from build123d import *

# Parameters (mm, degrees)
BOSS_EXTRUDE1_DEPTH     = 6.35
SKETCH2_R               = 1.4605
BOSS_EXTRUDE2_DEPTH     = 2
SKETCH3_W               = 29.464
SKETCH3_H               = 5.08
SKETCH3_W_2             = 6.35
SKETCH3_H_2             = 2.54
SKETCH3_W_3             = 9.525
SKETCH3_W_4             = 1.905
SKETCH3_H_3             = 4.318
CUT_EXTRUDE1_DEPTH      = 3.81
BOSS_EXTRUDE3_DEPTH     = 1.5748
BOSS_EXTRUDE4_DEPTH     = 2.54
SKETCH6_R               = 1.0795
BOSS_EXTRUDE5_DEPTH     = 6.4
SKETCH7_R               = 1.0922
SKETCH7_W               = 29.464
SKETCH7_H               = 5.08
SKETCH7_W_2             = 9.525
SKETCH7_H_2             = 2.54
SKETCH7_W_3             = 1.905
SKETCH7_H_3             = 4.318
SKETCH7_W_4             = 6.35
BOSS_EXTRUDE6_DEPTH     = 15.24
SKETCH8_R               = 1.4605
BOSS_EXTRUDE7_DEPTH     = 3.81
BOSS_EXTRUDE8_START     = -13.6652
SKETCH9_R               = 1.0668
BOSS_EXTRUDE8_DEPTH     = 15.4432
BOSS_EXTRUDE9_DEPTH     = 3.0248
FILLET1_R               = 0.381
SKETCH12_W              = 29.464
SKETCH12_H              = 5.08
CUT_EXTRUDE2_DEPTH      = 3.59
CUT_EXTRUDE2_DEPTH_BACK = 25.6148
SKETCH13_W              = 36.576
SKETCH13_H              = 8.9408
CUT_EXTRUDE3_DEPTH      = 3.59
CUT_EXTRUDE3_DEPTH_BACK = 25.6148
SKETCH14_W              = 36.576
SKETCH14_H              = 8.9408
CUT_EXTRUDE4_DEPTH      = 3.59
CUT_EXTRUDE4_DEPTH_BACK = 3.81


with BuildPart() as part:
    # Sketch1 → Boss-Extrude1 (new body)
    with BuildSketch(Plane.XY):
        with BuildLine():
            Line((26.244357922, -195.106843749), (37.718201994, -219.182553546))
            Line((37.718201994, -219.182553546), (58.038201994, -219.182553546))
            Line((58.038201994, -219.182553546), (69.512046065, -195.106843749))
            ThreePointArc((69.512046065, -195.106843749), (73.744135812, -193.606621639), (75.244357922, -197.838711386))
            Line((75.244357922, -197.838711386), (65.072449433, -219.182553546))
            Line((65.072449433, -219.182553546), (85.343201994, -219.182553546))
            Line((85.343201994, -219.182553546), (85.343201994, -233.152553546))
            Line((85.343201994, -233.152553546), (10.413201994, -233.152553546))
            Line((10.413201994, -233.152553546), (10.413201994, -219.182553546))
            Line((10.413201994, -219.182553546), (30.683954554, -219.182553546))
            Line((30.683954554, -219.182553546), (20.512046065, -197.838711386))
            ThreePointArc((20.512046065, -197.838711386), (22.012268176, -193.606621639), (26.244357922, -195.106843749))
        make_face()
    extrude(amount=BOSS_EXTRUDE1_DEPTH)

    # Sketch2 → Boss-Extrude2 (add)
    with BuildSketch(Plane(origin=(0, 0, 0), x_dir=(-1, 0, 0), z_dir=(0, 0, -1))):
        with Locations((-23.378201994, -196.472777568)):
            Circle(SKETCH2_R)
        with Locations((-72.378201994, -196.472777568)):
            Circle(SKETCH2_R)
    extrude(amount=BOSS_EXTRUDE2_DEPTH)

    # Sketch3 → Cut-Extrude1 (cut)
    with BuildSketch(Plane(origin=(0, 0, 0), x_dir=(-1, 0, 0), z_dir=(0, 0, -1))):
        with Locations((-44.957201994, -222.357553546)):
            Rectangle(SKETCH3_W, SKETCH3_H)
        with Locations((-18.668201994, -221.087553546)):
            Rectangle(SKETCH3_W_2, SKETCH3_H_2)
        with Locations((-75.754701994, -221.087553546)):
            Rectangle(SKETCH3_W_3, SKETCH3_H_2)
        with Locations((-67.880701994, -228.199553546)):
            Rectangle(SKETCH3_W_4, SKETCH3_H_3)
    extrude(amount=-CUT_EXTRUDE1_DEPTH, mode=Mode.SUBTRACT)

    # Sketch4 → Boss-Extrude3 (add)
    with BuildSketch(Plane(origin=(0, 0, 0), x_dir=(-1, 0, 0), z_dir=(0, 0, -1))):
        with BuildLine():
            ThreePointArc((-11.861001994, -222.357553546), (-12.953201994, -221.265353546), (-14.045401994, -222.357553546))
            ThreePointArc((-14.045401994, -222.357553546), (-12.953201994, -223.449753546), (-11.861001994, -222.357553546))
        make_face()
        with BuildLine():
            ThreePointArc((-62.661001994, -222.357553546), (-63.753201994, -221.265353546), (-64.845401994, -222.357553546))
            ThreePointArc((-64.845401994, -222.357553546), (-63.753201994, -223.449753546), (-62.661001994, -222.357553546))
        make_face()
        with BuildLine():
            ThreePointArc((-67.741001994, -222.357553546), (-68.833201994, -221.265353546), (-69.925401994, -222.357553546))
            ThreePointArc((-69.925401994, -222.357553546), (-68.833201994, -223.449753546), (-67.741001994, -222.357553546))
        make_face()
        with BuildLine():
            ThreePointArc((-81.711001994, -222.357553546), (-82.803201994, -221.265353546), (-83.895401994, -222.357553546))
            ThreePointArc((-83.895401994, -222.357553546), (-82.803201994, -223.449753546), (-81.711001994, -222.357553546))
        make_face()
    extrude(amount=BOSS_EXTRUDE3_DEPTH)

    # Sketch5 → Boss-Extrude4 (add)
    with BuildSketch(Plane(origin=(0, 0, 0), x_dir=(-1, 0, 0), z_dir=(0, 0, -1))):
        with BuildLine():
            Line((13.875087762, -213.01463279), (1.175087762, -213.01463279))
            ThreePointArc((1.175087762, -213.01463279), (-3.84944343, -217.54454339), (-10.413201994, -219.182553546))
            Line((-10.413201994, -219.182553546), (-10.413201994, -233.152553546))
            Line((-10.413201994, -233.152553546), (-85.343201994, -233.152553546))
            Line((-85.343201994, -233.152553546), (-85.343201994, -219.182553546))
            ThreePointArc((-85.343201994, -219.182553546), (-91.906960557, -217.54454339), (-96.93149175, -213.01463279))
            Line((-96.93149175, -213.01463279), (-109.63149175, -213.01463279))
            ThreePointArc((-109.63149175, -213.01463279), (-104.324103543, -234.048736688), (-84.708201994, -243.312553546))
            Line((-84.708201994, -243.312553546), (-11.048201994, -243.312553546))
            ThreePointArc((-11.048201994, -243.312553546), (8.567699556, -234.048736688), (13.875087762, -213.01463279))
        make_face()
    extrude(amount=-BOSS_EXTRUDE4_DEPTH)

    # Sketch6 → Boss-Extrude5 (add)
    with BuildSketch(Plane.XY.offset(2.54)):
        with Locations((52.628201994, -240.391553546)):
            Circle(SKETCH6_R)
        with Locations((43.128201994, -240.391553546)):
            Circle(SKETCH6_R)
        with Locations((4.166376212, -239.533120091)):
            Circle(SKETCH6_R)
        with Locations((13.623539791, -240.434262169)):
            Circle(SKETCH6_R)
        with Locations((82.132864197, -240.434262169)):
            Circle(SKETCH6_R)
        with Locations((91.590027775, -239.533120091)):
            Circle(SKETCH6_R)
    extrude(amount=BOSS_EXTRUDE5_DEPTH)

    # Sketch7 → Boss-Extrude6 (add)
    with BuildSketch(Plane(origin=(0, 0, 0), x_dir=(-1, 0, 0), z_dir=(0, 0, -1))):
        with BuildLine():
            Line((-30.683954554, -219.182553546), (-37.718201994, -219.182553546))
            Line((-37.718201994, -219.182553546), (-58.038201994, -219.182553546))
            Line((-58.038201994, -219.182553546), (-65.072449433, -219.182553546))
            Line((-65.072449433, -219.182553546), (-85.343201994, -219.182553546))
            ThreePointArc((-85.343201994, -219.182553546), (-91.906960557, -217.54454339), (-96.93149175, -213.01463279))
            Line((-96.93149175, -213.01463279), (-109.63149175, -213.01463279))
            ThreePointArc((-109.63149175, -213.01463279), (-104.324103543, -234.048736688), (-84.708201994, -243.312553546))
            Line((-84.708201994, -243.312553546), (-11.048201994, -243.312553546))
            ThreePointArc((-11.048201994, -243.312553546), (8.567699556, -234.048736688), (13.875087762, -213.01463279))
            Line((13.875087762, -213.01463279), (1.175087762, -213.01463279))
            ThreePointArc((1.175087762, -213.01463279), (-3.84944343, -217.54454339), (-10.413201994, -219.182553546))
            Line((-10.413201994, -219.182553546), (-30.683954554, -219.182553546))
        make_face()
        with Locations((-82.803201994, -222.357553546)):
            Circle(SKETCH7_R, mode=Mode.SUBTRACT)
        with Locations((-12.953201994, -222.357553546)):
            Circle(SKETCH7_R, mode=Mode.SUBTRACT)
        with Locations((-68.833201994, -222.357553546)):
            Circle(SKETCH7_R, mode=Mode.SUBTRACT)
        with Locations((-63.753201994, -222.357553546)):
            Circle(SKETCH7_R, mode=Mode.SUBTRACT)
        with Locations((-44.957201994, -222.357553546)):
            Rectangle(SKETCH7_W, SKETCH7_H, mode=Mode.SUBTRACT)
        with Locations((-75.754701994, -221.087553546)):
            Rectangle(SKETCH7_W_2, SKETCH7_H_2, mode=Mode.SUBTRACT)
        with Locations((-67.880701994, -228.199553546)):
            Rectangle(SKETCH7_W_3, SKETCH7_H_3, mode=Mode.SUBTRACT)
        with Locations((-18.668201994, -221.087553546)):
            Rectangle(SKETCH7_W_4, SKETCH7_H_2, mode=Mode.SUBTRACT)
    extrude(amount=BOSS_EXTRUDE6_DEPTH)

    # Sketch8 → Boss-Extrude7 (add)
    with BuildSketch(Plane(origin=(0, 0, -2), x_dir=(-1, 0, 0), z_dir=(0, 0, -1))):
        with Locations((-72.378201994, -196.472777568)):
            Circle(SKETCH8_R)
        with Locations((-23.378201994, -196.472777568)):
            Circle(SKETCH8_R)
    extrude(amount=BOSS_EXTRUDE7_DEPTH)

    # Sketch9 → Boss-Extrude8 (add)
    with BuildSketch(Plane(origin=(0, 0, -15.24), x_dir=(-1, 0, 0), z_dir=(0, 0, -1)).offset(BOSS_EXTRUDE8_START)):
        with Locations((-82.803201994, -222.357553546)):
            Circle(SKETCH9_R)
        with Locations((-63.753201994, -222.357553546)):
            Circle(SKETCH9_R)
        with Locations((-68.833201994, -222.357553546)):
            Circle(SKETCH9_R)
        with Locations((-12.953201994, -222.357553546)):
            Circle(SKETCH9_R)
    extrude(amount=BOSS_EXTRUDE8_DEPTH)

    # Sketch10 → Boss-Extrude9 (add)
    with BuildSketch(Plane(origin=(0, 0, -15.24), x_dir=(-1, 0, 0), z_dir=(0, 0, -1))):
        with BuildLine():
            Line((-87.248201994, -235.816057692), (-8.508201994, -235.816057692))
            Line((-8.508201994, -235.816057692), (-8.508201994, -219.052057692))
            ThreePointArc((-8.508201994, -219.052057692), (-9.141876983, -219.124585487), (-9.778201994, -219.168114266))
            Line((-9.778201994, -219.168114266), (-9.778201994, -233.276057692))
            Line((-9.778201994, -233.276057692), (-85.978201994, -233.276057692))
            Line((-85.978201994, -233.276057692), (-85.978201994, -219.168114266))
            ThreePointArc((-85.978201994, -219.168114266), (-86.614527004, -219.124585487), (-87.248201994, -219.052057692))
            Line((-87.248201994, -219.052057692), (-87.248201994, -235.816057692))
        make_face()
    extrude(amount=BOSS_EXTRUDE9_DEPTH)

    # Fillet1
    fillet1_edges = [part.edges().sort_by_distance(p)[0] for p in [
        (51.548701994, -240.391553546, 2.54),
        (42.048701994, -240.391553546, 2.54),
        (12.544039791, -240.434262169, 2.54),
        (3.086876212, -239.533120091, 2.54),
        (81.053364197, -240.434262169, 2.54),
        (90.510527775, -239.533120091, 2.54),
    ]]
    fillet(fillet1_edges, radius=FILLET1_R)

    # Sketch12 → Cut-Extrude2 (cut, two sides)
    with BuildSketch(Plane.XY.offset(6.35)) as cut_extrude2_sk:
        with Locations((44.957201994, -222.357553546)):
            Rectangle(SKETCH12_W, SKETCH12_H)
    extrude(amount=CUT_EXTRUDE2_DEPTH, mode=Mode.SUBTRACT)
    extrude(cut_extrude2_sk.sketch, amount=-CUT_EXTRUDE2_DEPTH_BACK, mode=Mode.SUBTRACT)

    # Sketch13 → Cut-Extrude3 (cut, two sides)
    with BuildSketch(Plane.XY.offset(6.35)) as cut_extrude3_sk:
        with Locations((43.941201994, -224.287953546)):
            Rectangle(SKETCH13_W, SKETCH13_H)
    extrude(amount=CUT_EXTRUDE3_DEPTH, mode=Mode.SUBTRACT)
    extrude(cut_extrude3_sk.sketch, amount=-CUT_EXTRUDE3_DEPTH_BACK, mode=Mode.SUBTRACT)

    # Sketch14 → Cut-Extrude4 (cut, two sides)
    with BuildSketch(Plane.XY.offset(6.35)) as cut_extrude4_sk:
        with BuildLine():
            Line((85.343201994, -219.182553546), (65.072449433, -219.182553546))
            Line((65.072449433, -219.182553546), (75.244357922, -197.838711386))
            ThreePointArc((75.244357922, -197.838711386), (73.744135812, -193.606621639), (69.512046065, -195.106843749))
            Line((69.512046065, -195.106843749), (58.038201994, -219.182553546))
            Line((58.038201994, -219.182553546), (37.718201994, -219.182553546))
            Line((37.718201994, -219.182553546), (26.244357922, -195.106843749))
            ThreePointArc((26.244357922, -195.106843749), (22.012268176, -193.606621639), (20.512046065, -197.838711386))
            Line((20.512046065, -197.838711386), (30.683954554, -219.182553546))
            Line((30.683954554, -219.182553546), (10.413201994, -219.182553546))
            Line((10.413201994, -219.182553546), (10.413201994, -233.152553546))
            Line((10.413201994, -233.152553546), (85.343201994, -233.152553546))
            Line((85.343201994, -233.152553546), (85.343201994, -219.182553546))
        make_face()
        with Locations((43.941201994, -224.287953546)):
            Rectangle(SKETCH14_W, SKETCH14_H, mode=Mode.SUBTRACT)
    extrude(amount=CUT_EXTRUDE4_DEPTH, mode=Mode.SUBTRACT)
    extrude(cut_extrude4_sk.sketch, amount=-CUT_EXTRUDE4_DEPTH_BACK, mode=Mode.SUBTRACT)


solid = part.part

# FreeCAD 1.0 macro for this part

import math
import FreeCAD as App
import Part
import Sketcher

V = App.Vector
Q = App.Units.Quantity


def edges_at(feature, points):
    """Names of the edges that pass closest to the given points."""
    edges = feature.Shape.Edges
    near = lambda p: min(range(len(edges)), key=lambda i: edges[i].distToShape(Part.Vertex(*p))[0])
    return sorted({f"Edge{near(p) + 1}" for p in points})


def add_polygon(sketch, points):
    """Adds a closed chain of lines whose ends are joined by coincident constraints."""
    first, n = sketch.GeometryCount, len(points)
    for a, b in zip(points, points[1:] + points[:1]):
        sketch.addGeometry(Part.LineSegment(App.Vector(*a, 0), App.Vector(*b, 0)), False)
    for i in range(n):
        sketch.addConstraint(Sketcher.Constraint("Coincident", first + i, 2, first + (i + 1) % n, 1))

doc = App.newDocument("Part")
body = doc.addObject("PartDesign::Body", "Body")

sketch1 = body.newObject("Sketcher::SketchObject", "Sketch")
sketch1.AttachmentSupport = (doc.getObject("XY_Plane"), [""])
sketch1.MapMode = "FlatFace"
sketch1.addGeometry([
    Part.LineSegment(V(37.7, -219.2, 0), V(26.2, -195.1, 0)),
    Part.ArcOfCircle(Part.Circle(V(23.4, -196.5, 0), V(0, 0, 1), 3.2), math.radians(25), math.radians(205)),
    Part.LineSegment(V(20.5, -197.8, 0), V(30.7, -219.2, 0)),
    Part.LineSegment(V(30.7, -219.2, 0), V(10.4, -219.2, 0)),
    Part.LineSegment(V(10.4, -219.2, 0), V(10.4, -233.2, 0)),
    Part.LineSegment(V(10.4, -233.2, 0), V(85.3, -233.2, 0)),
    Part.LineSegment(V(85.3, -233.2, 0), V(85.3, -219.2, 0)),
    Part.LineSegment(V(85.3, -219.2, 0), V(65.1, -219.2, 0)),
    Part.LineSegment(V(65.1, -219.2, 0), V(75.2, -197.8, 0)),
    Part.ArcOfCircle(Part.Circle(V(72.4, -196.5, 0), V(0, 0, 1), 3.2), math.radians(-25), math.radians(155)),
    Part.LineSegment(V(69.5, -195.1, 0), V(58, -219.2, 0)),
    Part.LineSegment(V(58, -219.2, 0), V(37.7, -219.2, 0)),
], False)
sketch1.addConstraint([
    Sketcher.Constraint("Tangent", 0, 2, 1, 1),
    Sketcher.Constraint("Tangent", 1, 2, 2, 1),
    Sketcher.Constraint("Coincident", 2, 2, 3, 1),
    Sketcher.Constraint("Coincident", 3, 2, 4, 1),
    Sketcher.Constraint("Coincident", 4, 2, 5, 1),
    Sketcher.Constraint("Coincident", 5, 2, 6, 1),
    Sketcher.Constraint("Coincident", 6, 2, 7, 1),
    Sketcher.Constraint("Coincident", 7, 2, 8, 1),
    Sketcher.Constraint("Tangent", 8, 2, 9, 1),
    Sketcher.Constraint("Tangent", 9, 2, 10, 1),
    Sketcher.Constraint("Coincident", 10, 2, 11, 1),
    Sketcher.Constraint("Coincident", 11, 2, 0, 1),
    Sketcher.Constraint("Horizontal", 3),
    Sketcher.Constraint("Vertical", 4),
    Sketcher.Constraint("Horizontal", 5),
    Sketcher.Constraint("Vertical", 6),
    Sketcher.Constraint("Horizontal", 7),
    Sketcher.Constraint("Horizontal", 11),
    Sketcher.Constraint("Equal", 1, 9),
    Sketcher.Constraint("Parallel", 0, 2),
    Sketcher.Constraint("Parallel", 8, 10),
    Sketcher.Constraint("Horizontal", 1, 3, 9, 3),
    Sketcher.Constraint("Horizontal", 3, 2, 6, 2),
    Sketcher.Constraint("Horizontal", 1, 2, 8, 2),
    Sketcher.Constraint("Horizontal", 7, 2, 10, 2),
    Sketcher.Constraint("Equal", 3, 7),
    Sketcher.Constraint("DistanceX", 11, 2, 11, 1, Q("0.8 in")),
    Sketcher.Constraint("Radius", 1, Q("0.125 in")),
    Sketcher.Constraint("DistanceX", 5, 1, 5, 2, Q("2.95 in")),
    Sketcher.Constraint("DistanceY", 4, 2, 4, 1, Q("0.55 in")),
    Sketcher.Constraint("Distance", 0, Q("1.05 in")),
    Sketcher.Constraint("DistanceX", -1, 1, 1, 3, 23.378202),
    Sketcher.Constraint("DistanceX", -1, 1, 9, 3, 72.378202),
    Sketcher.Constraint("DistanceY", 1, 2, -1, 1, 197.838711),
])
pad1 = body.newObject("PartDesign::Pad", "Pad")
pad1.Profile = sketch1
pad1.Length = Q("0.25 in")

sketch2 = body.newObject("Sketcher::SketchObject", "Sketch001")
sketch2.AttachmentSupport = (doc.getObject("XY_Plane"), [""])
sketch2.MapMode = "FlatFace"
sketch2.addGeometry([
    Part.Circle(V(23.4, -196.5, 0), V(0, 0, 1), 1.5),
    Part.Circle(V(72.4, -196.5, 0), V(0, 0, 1), 1.5),
], False)
sketch2.addConstraint([
    Sketcher.Constraint("Equal", 0, 1),
    Sketcher.Constraint("Horizontal", 0, 3, 1, 3),
    Sketcher.Constraint("Diameter", 0, Q("0.115 in")),
    Sketcher.Constraint("DistanceX", -1, 1, 0, 3, 23.378202),
    Sketcher.Constraint("DistanceX", -1, 1, 1, 3, 72.378202),
    Sketcher.Constraint("DistanceY", 0, 3, -1, 1, 196.472778),
])
pad2 = body.newObject("PartDesign::Pad", "Pad001")
pad2.Profile = sketch2
pad2.Length = 2
pad2.Reversed = True

sketch3 = body.newObject("Sketcher::SketchObject", "Sketch002")
sketch3.AttachmentSupport = (doc.getObject("XY_Plane"), [""])
sketch3.MapMode = "FlatFace"
add_polygon(sketch3, [(59.7, -219.8), (59.7, -224.9), (30.2, -224.9), (30.2, -219.8)])
add_polygon(sketch3, [(21.8, -219.8), (21.8, -222.4), (15.5, -222.4), (15.5, -219.8)])
add_polygon(sketch3, [(80.5, -219.8), (80.5, -222.4), (71, -222.4), (71, -219.8)])
add_polygon(sketch3, [(68.8, -226), (68.8, -230.4), (66.9, -230.4), (66.9, -226)])
sketch3.addConstraint([
    Sketcher.Constraint("Vertical", 0),
    Sketcher.Constraint("Horizontal", 1),
    Sketcher.Constraint("Vertical", 2),
    Sketcher.Constraint("Horizontal", 3),
    Sketcher.Constraint("Vertical", 4),
    Sketcher.Constraint("Horizontal", 5),
    Sketcher.Constraint("Vertical", 6),
    Sketcher.Constraint("Horizontal", 7),
    Sketcher.Constraint("Vertical", 8),
    Sketcher.Constraint("Horizontal", 9),
    Sketcher.Constraint("Vertical", 10),
    Sketcher.Constraint("Horizontal", 11),
    Sketcher.Constraint("Vertical", 12),
    Sketcher.Constraint("Horizontal", 13),
    Sketcher.Constraint("Vertical", 14),
    Sketcher.Constraint("Horizontal", 15),
    Sketcher.Constraint("Horizontal", 3, 2, 6, 2),
    Sketcher.Constraint("Horizontal", 5, 2, 8, 2),
    Sketcher.Constraint("Horizontal", 7, 2, 10, 2),
    Sketcher.Constraint("DistanceY", 0, 2, 0, 1, Q("0.2 in")),
    Sketcher.Constraint("DistanceY", 4, 2, 4, 1, Q("0.1 in")),
    Sketcher.Constraint("DistanceX", 1, 2, 1, 1, Q("1.16 in")),
    Sketcher.Constraint("DistanceX", 5, 2, 5, 1, Q("0.25 in")),
    Sketcher.Constraint("DistanceY", 12, 2, 12, 1, Q("0.17 in")),
    Sketcher.Constraint("DistanceX", 9, 2, 9, 1, Q("0.375 in")),
    Sketcher.Constraint("DistanceX", 13, 2, 13, 1, Q("0.075 in")),
    Sketcher.Constraint("DistanceX", 4, 2, 2, 2, Q("0.33 in")),
    Sketcher.Constraint("DistanceX", 3, 2, 8, 2, Q("0.82 in")),
    Sketcher.Constraint("DistanceX", 0, 2, 12, 2, Q("0.36 in")),
    Sketcher.Constraint("DistanceY", 12, 2, 9, 2, Q("0.315 in")),
    Sketcher.Constraint("DistanceX", -1, 1, 0, 2, 59.689202),
    Sketcher.Constraint("DistanceY", 0, 2, -1, 1, 224.897554),
])
pocket1 = body.newObject("PartDesign::Pocket", "Pocket")
pocket1.Profile = sketch3
pocket1.Length = Q("0.15 in")
pocket1.Reversed = True

sketch4 = body.newObject("Sketcher::SketchObject", "Sketch003")
sketch4.AttachmentSupport = (doc.getObject("XY_Plane"), [""])
sketch4.MapMode = "FlatFace"
sketch4.addGeometry([
    Part.Circle(V(13, -222.4, 0), V(0, 0, 1), 1.1),
    Part.Circle(V(63.8, -222.4, 0), V(0, 0, 1), 1.1),
    Part.Circle(V(68.8, -222.4, 0), V(0, 0, 1), 1.1),
    Part.Circle(V(82.8, -222.4, 0), V(0, 0, 1), 1.1),
], False)
sketch4.addConstraint([
    Sketcher.Constraint("Equal", 0, 1),
    Sketcher.Constraint("Equal", 1, 2),
    Sketcher.Constraint("Equal", 2, 3),
    Sketcher.Constraint("Horizontal", 0, 3, 1, 3),
    Sketcher.Constraint("Horizontal", 1, 3, 2, 3),
    Sketcher.Constraint("Horizontal", 2, 3, 3, 3),
    Sketcher.Constraint("Diameter", 0, Q("0.086 in")),
    Sketcher.Constraint("DistanceX", 0, 3, 1, 3, Q("2 in")),
    Sketcher.Constraint("DistanceX", 1, 3, 2, 3, Q("0.2 in")),
    Sketcher.Constraint("DistanceX", 2, 3, 3, 3, Q("0.55 in")),
    Sketcher.Constraint("DistanceX", -1, 1, 0, 3, 12.953202),
    Sketcher.Constraint("DistanceY", 0, 3, -1, 1, 222.357554),
])
pad3 = body.newObject("PartDesign::Pad", "Pad002")
pad3.Profile = sketch4
pad3.Length = Q("0.062 in")
pad3.Reversed = True

sketch5 = body.newObject("Sketcher::SketchObject", "Sketch004")
sketch5.AttachmentSupport = (doc.getObject("XY_Plane"), [""])
sketch5.MapMode = "FlatFace"
sketch5.addGeometry([
    Part.LineSegment(V(-14, -213, 0), V(-1, -213, 0)),
    Part.ArcOfCircle(Part.Circle(V(10, -205, 0), V(0, 0, 1), 14), math.radians(-146), math.radians(-90)),
    Part.LineSegment(V(10, -219, 0), V(10, -233, 0)),
    Part.LineSegment(V(10, -233, 0), V(85, -233, 0)),
    Part.LineSegment(V(85, -233, 0), V(85, -219, 0)),
    Part.ArcOfCircle(Part.Circle(V(85, -205, 0), V(0, 0, 1), 14), math.radians(-90), math.radians(-34)),
    Part.LineSegment(V(97, -213, 0), V(110, -213, 0)),
    Part.ArcOfCircle(Part.Circle(V(85, -218, 0), V(0, 0, 1), 25), math.radians(-90), math.radians(11)),
    Part.LineSegment(V(85, -243, 0), V(11, -243, 0)),
    Part.ArcOfCircle(Part.Circle(V(11, -218, 0), V(0, 0, 1), 25), math.radians(169), math.radians(270)),
], False)
sketch5.addConstraint([
    Sketcher.Constraint("Coincident", 0, 2, 1, 1),
    Sketcher.Constraint("Coincident", 1, 2, 2, 1),
    Sketcher.Constraint("Coincident", 2, 2, 3, 1),
    Sketcher.Constraint("Coincident", 3, 2, 4, 1),
    Sketcher.Constraint("Coincident", 4, 2, 5, 1),
    Sketcher.Constraint("Coincident", 5, 2, 6, 1),
    Sketcher.Constraint("Coincident", 6, 2, 7, 2),
    Sketcher.Constraint("Tangent", 7, 1, 8, 1),
    Sketcher.Constraint("Tangent", 8, 2, 9, 2),
    Sketcher.Constraint("Coincident", 9, 1, 0, 1),
    Sketcher.Constraint("Horizontal", 0),
    Sketcher.Constraint("Vertical", 2),
    Sketcher.Constraint("Horizontal", 3),
    Sketcher.Constraint("Vertical", 4),
    Sketcher.Constraint("Horizontal", 6),
    Sketcher.Constraint("Horizontal", 8),
    Sketcher.Constraint("Equal", 1, 5),
    Sketcher.Constraint("Equal", 7, 9),
    Sketcher.Constraint("Horizontal", 1, 3, 5, 3),
    Sketcher.Constraint("Horizontal", 0, 2, 5, 2),
    Sketcher.Constraint("Vertical", 5, 3, 3, 2),
    Sketcher.Constraint("Equal", 0, 6),
    Sketcher.Constraint("Radius", 7, Q("1 in")),
    Sketcher.Constraint("Radius", 1, Q("0.55 in")),
    Sketcher.Constraint("DistanceX", 0, 1, 0, 2, Q("0.5 in")),
    Sketcher.Constraint("DistanceX", 8, 2, 8, 1, Q("2.9 in")),
    Sketcher.Constraint("DistanceX", 3, 1, 3, 2, Q("2.95 in")),
    Sketcher.Constraint("DistanceY", 2, 2, 2, 1, Q("0.55 in")),
    Sketcher.Constraint("DistanceY", 7, 3, 5, 3, Q("0.5 in")),
    Sketcher.Constraint("DistanceX", 1, 3, 5, 3, Q("2.95 in")),
    Sketcher.Constraint("DistanceX", -1, 1, 1, 3, 10.413202),
    Sketcher.Constraint("DistanceY", 1, 3, -1, 1, 205.212554),
])
pad4 = body.newObject("PartDesign::Pad", "Pad003")
pad4.Profile = sketch5
pad4.Length = Q("0.1 in")

sketch6 = body.newObject("Sketcher::SketchObject", "Sketch005")
sketch6.AttachmentSupport = (doc.getObject("XY_Plane"), [""])
sketch6.MapMode = "FlatFace"
sketch6.AttachmentOffset = App.Placement(V(0, 0, 0.1 * 25.4), App.Rotation())
sketch6.addGeometry([
    Part.Circle(V(52.6, -240.4, 0), V(0, 0, 1), 1.1),
    Part.Circle(V(43.1, -240.4, 0), V(0, 0, 1), 1.1),
    Part.Circle(V(4.2, -239.5, 0), V(0, 0, 1), 1.1),
    Part.Circle(V(13.6, -240.4, 0), V(0, 0, 1), 1.1),
    Part.Circle(V(82.1, -240.4, 0), V(0, 0, 1), 1.1),
    Part.Circle(V(91.6, -239.5, 0), V(0, 0, 1), 1.1),
], False)
sketch6.addConstraint([
    Sketcher.Constraint("Equal", 0, 1),
    Sketcher.Constraint("Equal", 1, 2),
    Sketcher.Constraint("Equal", 2, 3),
    Sketcher.Constraint("Equal", 3, 4),
    Sketcher.Constraint("Equal", 4, 5),
    Sketcher.Constraint("Horizontal", 0, 3, 1, 3),
    Sketcher.Constraint("Horizontal", 3, 3, 4, 3),
    Sketcher.Constraint("Horizontal", 2, 3, 5, 3),
    Sketcher.Constraint("Diameter", 0, Q("0.085 in")),
    Sketcher.Constraint("DistanceX", -1, 1, 0, 3, 52.628202),
    Sketcher.Constraint("DistanceX", -1, 1, 1, 3, 43.128202),
    Sketcher.Constraint("DistanceY", 2, 3, -1, 1, 239.53312),
    Sketcher.Constraint("DistanceX", -1, 1, 3, 3, 13.62354),
    Sketcher.Constraint("DistanceY", 3, 3, 1, 3, 0.042709),
    Sketcher.Constraint("DistanceX", 2, 3, 5, 3, 87.423652),
    Sketcher.Constraint("DistanceY", 0, 3, -1, 1, 240.391554),
    Sketcher.Constraint("DistanceX", -1, 1, 2, 3, 4.166376),
    Sketcher.Constraint("DistanceX", -1, 1, 4, 3, 82.132864),
])
pad5 = body.newObject("PartDesign::Pad", "Pad004")
pad5.Profile = sketch6
pad5.Length = 6.4

sketch7 = body.newObject("Sketcher::SketchObject", "Sketch006")
sketch7.AttachmentSupport = (doc.getObject("XY_Plane"), [""])
sketch7.MapMode = "FlatFace"
sketch7.addGeometry(Part.ArcOfCircle(Part.Circle(V(85.3, -205.2, 0), V(0, 0, 1), 14), math.radians(-90), math.radians(-34)), False)
sketch7.addGeometry(Part.LineSegment(V(96.9, -213, 0), V(109.6, -213, 0)), False)
sketch7.addGeometry(Part.ArcOfCircle(Part.Circle(V(84.7, -217.9, 0), V(0, 0, 1), 25.4), math.radians(-90), math.radians(11)), False)
sketch7.addGeometry(Part.LineSegment(V(84.7, -243.3, 0), V(11, -243.3, 0)), False)
sketch7.addGeometry(Part.ArcOfCircle(Part.Circle(V(11, -217.9, 0), V(0, 0, 1), 25.4), math.radians(169), math.radians(270)), False)
sketch7.addGeometry(Part.LineSegment(V(-13.9, -213, 0), V(-1.2, -213, 0)), False)
sketch7.addGeometry(Part.ArcOfCircle(Part.Circle(V(10.4, -205.2, 0), V(0, 0, 1), 14), math.radians(-146), math.radians(-90)), False)
sketch7.addGeometry(Part.LineSegment(V(10.4, -219.2, 0), V(85.3, -219.2, 0)), False)
add_polygon(sketch7, [(66.9, -230.4), (68.8, -230.4), (68.8, -226), (66.9, -226)])
sketch7.addGeometry(Part.Circle(V(82.8, -222.4, 0), V(0, 0, 1), 1.1), False)
sketch7.addGeometry(Part.Circle(V(68.8, -222.4, 0), V(0, 0, 1), 1.1), False)
add_polygon(sketch7, [(71, -222.4), (80.5, -222.4), (80.5, -219.8), (71, -219.8)])
sketch7.addGeometry(Part.Circle(V(63.8, -222.4, 0), V(0, 0, 1), 1.1), False)
add_polygon(sketch7, [(30.2, -224.9), (59.7, -224.9), (59.7, -219.8), (30.2, -219.8)])
sketch7.addGeometry(Part.Circle(V(13, -222.4, 0), V(0, 0, 1), 1.1), False)
add_polygon(sketch7, [(15.5, -222.4), (21.8, -222.4), (21.8, -219.8), (15.5, -219.8)])
sketch7.addConstraint([
    Sketcher.Constraint("Coincident", 0, 2, 1, 1),
    Sketcher.Constraint("Coincident", 1, 2, 2, 2),
    Sketcher.Constraint("Tangent", 2, 1, 3, 1),
    Sketcher.Constraint("Tangent", 3, 2, 4, 2),
    Sketcher.Constraint("Coincident", 4, 1, 5, 1),
    Sketcher.Constraint("Coincident", 5, 2, 6, 1),
    Sketcher.Constraint("Tangent", 6, 2, 7, 1),
    Sketcher.Constraint("Tangent", 7, 2, 0, 1),
    Sketcher.Constraint("Horizontal", 1),
    Sketcher.Constraint("Horizontal", 3),
    Sketcher.Constraint("Horizontal", 5),
    Sketcher.Constraint("Horizontal", 7),
    Sketcher.Constraint("Horizontal", 8),
    Sketcher.Constraint("Vertical", 9),
    Sketcher.Constraint("Horizontal", 10),
    Sketcher.Constraint("Vertical", 11),
    Sketcher.Constraint("Horizontal", 14),
    Sketcher.Constraint("Vertical", 15),
    Sketcher.Constraint("Horizontal", 16),
    Sketcher.Constraint("Vertical", 17),
    Sketcher.Constraint("Horizontal", 19),
    Sketcher.Constraint("Vertical", 20),
    Sketcher.Constraint("Horizontal", 21),
    Sketcher.Constraint("Vertical", 22),
    Sketcher.Constraint("Horizontal", 24),
    Sketcher.Constraint("Vertical", 25),
    Sketcher.Constraint("Horizontal", 26),
    Sketcher.Constraint("Vertical", 27),
    Sketcher.Constraint("Equal", 2, 4),
    Sketcher.Constraint("Equal", 0, 6),
    Sketcher.Constraint("Equal", 12, 13),
    Sketcher.Constraint("Equal", 13, 18),
    Sketcher.Constraint("Equal", 18, 23),
    Sketcher.Constraint("Horizontal", 12, 3, 13, 3),
    Sketcher.Constraint("Horizontal", 13, 3, 18, 3),
    Sketcher.Constraint("Horizontal", 18, 3, 23, 3),
    Sketcher.Constraint("Horizontal", 1, 2, 4, 1),
    Sketcher.Constraint("Horizontal", 23, 3, 14, 2),
    Sketcher.Constraint("Horizontal", 16, 2, 20, 2),
    Sketcher.Constraint("Horizontal", 17, 2, 24, 2),
    Sketcher.Constraint("Horizontal", 21, 2, 25, 2),
    Sketcher.Constraint("Vertical", 13, 3, 8, 2),
    Sketcher.Constraint("Equal", 1, 5),
    Sketcher.Constraint("Radius", 2, Q("1 in")),
    Sketcher.Constraint("Radius", 0, Q("0.55 in")),
    Sketcher.Constraint("Diameter", 12, Q("0.086 in")),
    Sketcher.Constraint("DistanceX", 1, 1, 1, 2, Q("0.5 in")),
    Sketcher.Constraint("DistanceX", 3, 2, 3, 1, Q("2.9 in")),
    Sketcher.Constraint("DistanceY", 15, 1, 15, 2, Q("0.1 in")),
    Sketcher.Constraint("DistanceY", 20, 1, 20, 2, Q("0.2 in")),
    Sketcher.Constraint("DistanceX", 23, 3, 18, 3, Q("2 in")),
    Sketcher.Constraint("DistanceX", 7, 1, 7, 2, Q("2.95 in")),
    Sketcher.Constraint("DistanceX", 19, 1, 19, 2, Q("1.16 in")),
    Sketcher.Constraint("DistanceX", 24, 1, 24, 2, Q("0.25 in")),
    Sketcher.Constraint("DistanceY", 9, 1, 9, 2, Q("0.17 in")),
    Sketcher.Constraint("DistanceY", 2, 3, 0, 3, Q("0.5 in")),
    Sketcher.Constraint("DistanceX", 12, 3, 0, 3, Q("0.1 in")),
    Sketcher.Constraint("DistanceX", 6, 3, 13, 3, Q("2.3 in")),
    Sketcher.Constraint("DistanceX", 18, 3, 13, 3, Q("0.2 in")),
    Sketcher.Constraint("DistanceX", 23, 3, 26, 2, Q("0.1 in")),
    Sketcher.Constraint("DistanceX", 8, 1, 8, 2, Q("0.075 in")),
    Sketcher.Constraint("DistanceX", 14, 1, 14, 2, Q("0.375 in")),
    Sketcher.Constraint("DistanceY", 8, 2, 7, 2, Q("0.44 in")),
    Sketcher.Constraint("DistanceX", 14, 2, 12, 3, Q("0.09 in")),
    Sketcher.Constraint("DistanceX", 19, 2, 18, 3, Q("0.16 in")),
    Sketcher.Constraint("DistanceY", 12, 3, 2, 3, Q("0.175 in")),
    Sketcher.Constraint("DistanceX", -1, 1, 0, 3, 85.343202),
    Sketcher.Constraint("DistanceY", 0, 3, -1, 1, 205.212554),
])
pad6 = body.newObject("PartDesign::Pad", "Pad005")
pad6.Profile = sketch7
pad6.Length = Q("0.6 in")
pad6.Reversed = True

sketch8 = body.newObject("Sketcher::SketchObject", "Sketch007")
sketch8.AttachmentSupport = (doc.getObject("XY_Plane"), [""])
sketch8.MapMode = "FlatFace"
sketch8.AttachmentOffset = App.Placement(V(0, 0, -2), App.Rotation())
sketch8.addGeometry([
    Part.Circle(V(72.4, -196.5, 0), V(0, 0, 1), 1.5),
    Part.Circle(V(23.4, -196.5, 0), V(0, 0, 1), 1.5),
], False)
sketch8.addConstraint([
    Sketcher.Constraint("Equal", 0, 1),
    Sketcher.Constraint("Horizontal", 0, 3, 1, 3),
    Sketcher.Constraint("Diameter", 0, Q("0.115 in")),
    Sketcher.Constraint("DistanceX", -1, 1, 0, 3, 72.378202),
    Sketcher.Constraint("DistanceX", -1, 1, 1, 3, 23.378202),
    Sketcher.Constraint("DistanceY", 0, 3, -1, 1, 196.472778),
])
pad7 = body.newObject("PartDesign::Pad", "Pad006")
pad7.Profile = sketch8
pad7.Length = Q("0.15 in")
pad7.Reversed = True

sketch9 = body.newObject("Sketcher::SketchObject", "Sketch008")
sketch9.AttachmentSupport = (doc.getObject("XY_Plane"), [""])
sketch9.MapMode = "FlatFace"
sketch9.AttachmentOffset = App.Placement(V(0, 0, -0.062 * 25.4), App.Rotation())
sketch9.addGeometry([
    Part.Circle(V(82.8, -222.4, 0), V(0, 0, 1), 1.1),
    Part.Circle(V(63.8, -222.4, 0), V(0, 0, 1), 1.1),
    Part.Circle(V(68.8, -222.4, 0), V(0, 0, 1), 1.1),
    Part.Circle(V(13, -222.4, 0), V(0, 0, 1), 1.1),
], False)
sketch9.addConstraint([
    Sketcher.Constraint("Equal", 0, 1),
    Sketcher.Constraint("Equal", 1, 2),
    Sketcher.Constraint("Equal", 2, 3),
    Sketcher.Constraint("Horizontal", 0, 3, 1, 3),
    Sketcher.Constraint("Horizontal", 1, 3, 2, 3),
    Sketcher.Constraint("Horizontal", 2, 3, 3, 3),
    Sketcher.Constraint("Diameter", 0, Q("0.084 in")),
    Sketcher.Constraint("DistanceX", 3, 3, 1, 3, Q("2 in")),
    Sketcher.Constraint("DistanceX", 1, 3, 2, 3, Q("0.2 in")),
    Sketcher.Constraint("DistanceX", 1, 3, 0, 3, Q("0.75 in")),
    Sketcher.Constraint("DistanceX", -1, 1, 0, 3, 82.803202),
    Sketcher.Constraint("DistanceY", 0, 3, -1, 1, 222.357554),
])
pad8 = body.newObject("PartDesign::Pad", "Pad007")
pad8.Profile = sketch9
pad8.Length = Q("0.608 in")
pad8.Reversed = True

sketch10 = body.newObject("Sketcher::SketchObject", "Sketch009")
sketch10.AttachmentSupport = (doc.getObject("XY_Plane"), [""])
sketch10.MapMode = "FlatFace"
sketch10.AttachmentOffset = App.Placement(V(0, 0, -0.6 * 25.4), App.Rotation())
sketch10.addGeometry([
    Part.LineSegment(V(87.2, -235.8, 0), V(8.5, -235.8, 0)),
    Part.LineSegment(V(8.5, -235.8, 0), V(8.5, -219.1, 0)),
    Part.ArcOfCircle(Part.Circle(V(10.4, -205.2, 0), V(0, 0, 1), 14), math.radians(-97.84), math.radians(-92.61)),
    Part.LineSegment(V(9.8, -219.2, 0), V(9.8, -233.3, 0)),
    Part.LineSegment(V(9.8, -233.3, 0), V(86, -233.3, 0)),
    Part.LineSegment(V(86, -233.3, 0), V(86, -219.2, 0)),
    Part.ArcOfCircle(Part.Circle(V(85.3, -205.2, 0), V(0, 0, 1), 14), math.radians(-87.39), math.radians(-82.16)),
    Part.LineSegment(V(87.2, -219.1, 0), V(87.2, -235.8, 0)),
], False)
sketch10.addConstraint([
    Sketcher.Constraint("Coincident", 0, 2, 1, 1),
    Sketcher.Constraint("Coincident", 1, 2, 2, 1),
    Sketcher.Constraint("Coincident", 2, 2, 3, 1),
    Sketcher.Constraint("Coincident", 3, 2, 4, 1),
    Sketcher.Constraint("Coincident", 4, 2, 5, 1),
    Sketcher.Constraint("Coincident", 5, 2, 6, 1),
    Sketcher.Constraint("Coincident", 6, 2, 7, 1),
    Sketcher.Constraint("Coincident", 7, 2, 0, 1),
    Sketcher.Constraint("Horizontal", 0),
    Sketcher.Constraint("Vertical", 1),
    Sketcher.Constraint("Vertical", 3),
    Sketcher.Constraint("Horizontal", 4),
    Sketcher.Constraint("Vertical", 5),
    Sketcher.Constraint("Vertical", 7),
    Sketcher.Constraint("Equal", 2, 6),
    Sketcher.Constraint("Horizontal", 2, 3, 6, 3),
    Sketcher.Constraint("Horizontal", 2, 2, 5, 2),
    Sketcher.Constraint("Horizontal", 1, 2, 6, 2),
    Sketcher.Constraint("DistanceX", 4, 1, 4, 2, Q("3 in")),
    Sketcher.Constraint("Radius", 2, Q("0.55 in")),
    Sketcher.Constraint("DistanceX", 0, 2, 0, 1, Q("3.1 in")),
    Sketcher.Constraint("DistanceY", 1, 1, 1, 2, Q("0.66 in")),
    Sketcher.Constraint("DistanceY", 0, 2, 3, 2, Q("0.1 in")),
    Sketcher.Constraint("DistanceX", 2, 3, 6, 3, Q("2.95 in")),
    Sketcher.Constraint("DistanceX", -1, 1, 2, 3, 10.413202),
    Sketcher.Constraint("DistanceY", 2, 3, -1, 1, 205.212554),
])
pad9 = body.newObject("PartDesign::Pad", "Pad008")
pad9.Profile = sketch10
pad9.Length = 3.0248
pad9.Reversed = True
doc.recompute()

fillet = body.newObject("PartDesign::Fillet", "Fillet")
fillet.Base = (pad9, edges_at(pad9, [
    (51.549, -240.392, 2.54),
    (42.049, -240.392, 2.54),
    (12.544, -240.434, 2.54),
    (3.087, -239.533, 2.54),
    (81.053, -240.434, 2.54),
    (90.511, -239.533, 2.54),
]))
fillet.Radius = Q("0.015 in")

sketch11 = body.newObject("Sketcher::SketchObject", "Sketch010")
sketch11.AttachmentSupport = (doc.getObject("XY_Plane"), [""])
sketch11.MapMode = "FlatFace"
sketch11.AttachmentOffset = App.Placement(V(0, 0, 0.25 * 25.4), App.Rotation())
add_polygon(sketch11, [(30, -220), (30, -225), (60, -225), (60, -220)])
sketch11.addConstraint([
    Sketcher.Constraint("Vertical", 0),
    Sketcher.Constraint("Horizontal", 1),
    Sketcher.Constraint("Vertical", 2),
    Sketcher.Constraint("Horizontal", 3),
    Sketcher.Constraint("DistanceY", 0, 2, 0, 1, Q("0.2 in")),
    Sketcher.Constraint("DistanceX", 1, 1, 1, 2, Q("1.16 in")),
    Sketcher.Constraint("DistanceX", -1, 1, 0, 2, 30.225202),
    Sketcher.Constraint("DistanceY", 0, 2, -1, 1, 224.897554),
])
pocket2 = body.newObject("PartDesign::Pocket", "Pocket001")
pocket2.Profile = sketch11
pocket2.Type = "ThroughAll"
pocket2.Midplane = True

sketch12 = body.newObject("Sketcher::SketchObject", "Sketch011")
sketch12.AttachmentSupport = (doc.getObject("XY_Plane"), [""])
sketch12.MapMode = "FlatFace"
sketch12.AttachmentOffset = App.Placement(V(0, 0, 0.25 * 25.4), App.Rotation())
add_polygon(sketch12, [(26, -220), (26, -229), (62, -229), (62, -220)])
sketch12.addConstraint([
    Sketcher.Constraint("Vertical", 0),
    Sketcher.Constraint("Horizontal", 1),
    Sketcher.Constraint("Vertical", 2),
    Sketcher.Constraint("Horizontal", 3),
    Sketcher.Constraint("DistanceX", 1, 1, 1, 2, Q("1.44 in")),
    Sketcher.Constraint("DistanceY", 0, 2, 0, 1, Q("0.352 in")),
    Sketcher.Constraint("DistanceX", -1, 1, 0, 2, 25.653202),
    Sketcher.Constraint("DistanceY", 0, 2, -1, 1, 228.758354),
])
pocket3 = body.newObject("PartDesign::Pocket", "Pocket002")
pocket3.Profile = sketch12
pocket3.Type = "ThroughAll"
pocket3.Midplane = True

sketch13 = body.newObject("Sketcher::SketchObject", "Sketch012")
sketch13.AttachmentSupport = (doc.getObject("XY_Plane"), [""])
sketch13.MapMode = "FlatFace"
sketch13.AttachmentOffset = App.Placement(V(0, 0, 0.25 * 25.4), App.Rotation())
sketch13.addGeometry(Part.LineSegment(V(85.3, -219.2, 0), V(65.1, -219.2, 0)), False)
sketch13.addGeometry(Part.LineSegment(V(65.1, -219.2, 0), V(75.2, -197.8, 0)), False)
sketch13.addGeometry(Part.ArcOfCircle(Part.Circle(V(72.4, -196.5, 0), V(0, 0, 1), 3.2), math.radians(-25), math.radians(155)), False)
sketch13.addGeometry(Part.LineSegment(V(69.5, -195.1, 0), V(58, -219.2, 0)), False)
sketch13.addGeometry(Part.LineSegment(V(58, -219.2, 0), V(37.7, -219.2, 0)), False)
sketch13.addGeometry(Part.LineSegment(V(37.7, -219.2, 0), V(26.2, -195.1, 0)), False)
sketch13.addGeometry(Part.ArcOfCircle(Part.Circle(V(23.4, -196.5, 0), V(0, 0, 1), 3.2), math.radians(25), math.radians(205)), False)
sketch13.addGeometry(Part.LineSegment(V(20.5, -197.8, 0), V(30.7, -219.2, 0)), False)
sketch13.addGeometry(Part.LineSegment(V(30.7, -219.2, 0), V(10.4, -219.2, 0)), False)
sketch13.addGeometry(Part.LineSegment(V(10.4, -219.2, 0), V(10.4, -233.2, 0)), False)
sketch13.addGeometry(Part.LineSegment(V(10.4, -233.2, 0), V(85.3, -233.2, 0)), False)
sketch13.addGeometry(Part.LineSegment(V(85.3, -233.2, 0), V(85.3, -219.2, 0)), False)
add_polygon(sketch13, [(62.2, -228.8), (25.7, -228.8), (25.7, -219.8), (62.2, -219.8)])
sketch13.addConstraint([
    Sketcher.Constraint("Coincident", 0, 2, 1, 1),
    Sketcher.Constraint("Tangent", 1, 2, 2, 1),
    Sketcher.Constraint("Tangent", 2, 2, 3, 1),
    Sketcher.Constraint("Coincident", 3, 2, 4, 1),
    Sketcher.Constraint("Coincident", 4, 2, 5, 1),
    Sketcher.Constraint("Tangent", 5, 2, 6, 1),
    Sketcher.Constraint("Tangent", 6, 2, 7, 1),
    Sketcher.Constraint("Coincident", 7, 2, 8, 1),
    Sketcher.Constraint("Coincident", 8, 2, 9, 1),
    Sketcher.Constraint("Coincident", 9, 2, 10, 1),
    Sketcher.Constraint("Coincident", 10, 2, 11, 1),
    Sketcher.Constraint("Coincident", 11, 2, 0, 1),
    Sketcher.Constraint("Horizontal", 0),
    Sketcher.Constraint("Horizontal", 4),
    Sketcher.Constraint("Horizontal", 8),
    Sketcher.Constraint("Vertical", 9),
    Sketcher.Constraint("Horizontal", 10),
    Sketcher.Constraint("Vertical", 11),
    Sketcher.Constraint("Horizontal", 12),
    Sketcher.Constraint("Vertical", 13),
    Sketcher.Constraint("Horizontal", 14),
    Sketcher.Constraint("Vertical", 15),
    Sketcher.Constraint("Equal", 2, 6),
    Sketcher.Constraint("Parallel", 1, 3),
    Sketcher.Constraint("Parallel", 5, 7),
    Sketcher.Constraint("Horizontal", 2, 3, 6, 3),
    Sketcher.Constraint("Horizontal", 0, 2, 3, 2),
    Sketcher.Constraint("Horizontal", 2, 2, 5, 2),
    Sketcher.Constraint("Horizontal", 4, 2, 7, 2),
    Sketcher.Constraint("Equal", 0, 8),
    Sketcher.Constraint("DistanceX", 4, 2, 4, 1, Q("0.8 in")),
    Sketcher.Constraint("Radius", 2, Q("0.125 in")),
    Sketcher.Constraint("DistanceX", 10, 1, 10, 2, Q("2.95 in")),
    Sketcher.Constraint("DistanceX", 12, 2, 12, 1, Q("1.44 in")),
    Sketcher.Constraint("DistanceY", 9, 2, 9, 1, Q("0.55 in")),
    Sketcher.Constraint("DistanceX", 9, 2, 12, 2, Q("0.6 in")),
    Sketcher.Constraint("Distance", 3, Q("1.05 in")),
    Sketcher.Constraint("DistanceY", 13, 1, 13, 2, Q("0.352 in")),
    Sketcher.Constraint("DistanceY", 12, 2, 7, 2, Q("0.377 in")),
    Sketcher.Constraint("DistanceX", -1, 1, 2, 3, 72.378202),
    Sketcher.Constraint("DistanceX", -1, 1, 6, 3, 23.378202),
    Sketcher.Constraint("DistanceY", 1, 2, -1, 1, 197.838711),
])
pocket4 = body.newObject("PartDesign::Pocket", "Pocket003")
pocket4.Profile = sketch13
pocket4.Type = "TwoLengths"
pocket4.Length = 3.59
pocket4.Length2 = Q("0.15 in")
pocket4.Reversed = True

doc.recompute()
